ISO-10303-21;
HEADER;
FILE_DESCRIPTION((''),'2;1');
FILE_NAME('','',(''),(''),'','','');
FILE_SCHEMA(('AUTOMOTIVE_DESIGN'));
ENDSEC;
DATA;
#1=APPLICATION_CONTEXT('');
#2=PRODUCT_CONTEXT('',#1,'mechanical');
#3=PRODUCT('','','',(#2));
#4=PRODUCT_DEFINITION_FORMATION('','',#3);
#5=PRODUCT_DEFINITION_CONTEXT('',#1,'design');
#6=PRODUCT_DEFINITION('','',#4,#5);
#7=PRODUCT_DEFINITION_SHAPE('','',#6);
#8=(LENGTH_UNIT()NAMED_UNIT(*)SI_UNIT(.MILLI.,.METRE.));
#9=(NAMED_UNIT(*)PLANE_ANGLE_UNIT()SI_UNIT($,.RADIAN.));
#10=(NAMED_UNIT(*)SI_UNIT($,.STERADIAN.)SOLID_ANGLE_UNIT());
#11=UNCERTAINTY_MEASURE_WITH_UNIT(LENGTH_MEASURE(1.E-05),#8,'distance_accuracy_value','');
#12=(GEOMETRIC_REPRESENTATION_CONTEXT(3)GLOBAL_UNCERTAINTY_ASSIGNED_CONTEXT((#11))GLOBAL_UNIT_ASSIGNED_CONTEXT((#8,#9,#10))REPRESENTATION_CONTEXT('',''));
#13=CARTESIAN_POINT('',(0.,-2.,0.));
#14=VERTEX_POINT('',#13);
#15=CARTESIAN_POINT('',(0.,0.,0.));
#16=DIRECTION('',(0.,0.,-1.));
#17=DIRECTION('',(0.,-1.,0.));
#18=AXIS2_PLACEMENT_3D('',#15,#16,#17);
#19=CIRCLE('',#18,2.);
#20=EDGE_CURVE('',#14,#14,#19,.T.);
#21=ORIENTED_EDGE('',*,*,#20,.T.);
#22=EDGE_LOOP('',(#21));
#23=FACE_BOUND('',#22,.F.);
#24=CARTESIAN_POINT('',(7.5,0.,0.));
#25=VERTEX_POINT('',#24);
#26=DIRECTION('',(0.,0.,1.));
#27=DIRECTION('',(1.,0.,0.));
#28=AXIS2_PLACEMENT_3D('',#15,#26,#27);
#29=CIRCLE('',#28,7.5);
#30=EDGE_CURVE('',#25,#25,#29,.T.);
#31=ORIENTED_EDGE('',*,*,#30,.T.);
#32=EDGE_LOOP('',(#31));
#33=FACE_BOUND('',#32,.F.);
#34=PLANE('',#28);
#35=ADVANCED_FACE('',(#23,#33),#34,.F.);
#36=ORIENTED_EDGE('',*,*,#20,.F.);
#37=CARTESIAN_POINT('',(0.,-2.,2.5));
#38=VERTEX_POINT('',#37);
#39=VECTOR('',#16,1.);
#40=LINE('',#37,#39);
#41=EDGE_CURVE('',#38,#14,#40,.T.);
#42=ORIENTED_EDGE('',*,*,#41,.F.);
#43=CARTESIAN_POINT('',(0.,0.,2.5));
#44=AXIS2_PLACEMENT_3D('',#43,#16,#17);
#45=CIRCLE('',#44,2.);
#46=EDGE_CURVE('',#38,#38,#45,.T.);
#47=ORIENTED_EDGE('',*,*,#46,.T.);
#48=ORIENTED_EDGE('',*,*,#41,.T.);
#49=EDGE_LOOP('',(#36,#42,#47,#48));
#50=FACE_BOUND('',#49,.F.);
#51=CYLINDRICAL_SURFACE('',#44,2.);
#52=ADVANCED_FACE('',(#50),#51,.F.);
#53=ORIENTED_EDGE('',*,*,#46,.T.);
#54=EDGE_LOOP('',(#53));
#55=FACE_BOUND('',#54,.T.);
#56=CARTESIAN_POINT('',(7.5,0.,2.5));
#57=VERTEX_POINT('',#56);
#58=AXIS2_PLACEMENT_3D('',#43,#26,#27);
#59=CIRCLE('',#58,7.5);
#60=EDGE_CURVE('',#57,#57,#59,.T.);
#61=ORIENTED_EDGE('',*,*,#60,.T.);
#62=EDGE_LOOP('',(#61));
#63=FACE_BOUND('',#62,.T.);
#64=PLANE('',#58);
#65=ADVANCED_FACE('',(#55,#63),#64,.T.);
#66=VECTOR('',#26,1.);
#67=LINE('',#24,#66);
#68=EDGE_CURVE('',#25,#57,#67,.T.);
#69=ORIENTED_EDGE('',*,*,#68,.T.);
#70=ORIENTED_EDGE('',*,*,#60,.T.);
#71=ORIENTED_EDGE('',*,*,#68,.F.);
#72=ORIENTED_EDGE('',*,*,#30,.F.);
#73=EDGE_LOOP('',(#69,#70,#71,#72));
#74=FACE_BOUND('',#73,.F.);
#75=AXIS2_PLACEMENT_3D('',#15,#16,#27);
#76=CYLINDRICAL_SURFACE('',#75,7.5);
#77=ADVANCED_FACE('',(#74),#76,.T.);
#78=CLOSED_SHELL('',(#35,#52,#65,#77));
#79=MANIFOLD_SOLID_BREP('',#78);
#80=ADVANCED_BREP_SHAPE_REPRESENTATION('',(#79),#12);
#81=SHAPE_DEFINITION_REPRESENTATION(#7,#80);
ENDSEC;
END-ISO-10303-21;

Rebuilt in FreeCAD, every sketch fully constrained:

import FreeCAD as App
import Part
import Sketcher

doc = App.newDocument("Part")
body = doc.addObject("PartDesign::Body", "Body")

sketch1 = body.newObject("Sketcher::SketchObject", "Sketch")
sketch1.AttachmentSupport = (doc.getObject("XY_Plane"), [""])
sketch1.MapMode = "FlatFace"
sketch1.addGeometry(Part.Circle(App.Vector(0, 0, 0), App.Vector(0, 0, 1), 8), False)
sketch1.addConstraint([
    Sketcher.Constraint("Coincident", 0, 3, -1, 1),
    Sketcher.Constraint("Diameter", 0, 15.0),
])
pad1 = body.newObject("PartDesign::Pad", "Pad")
pad1.Profile = sketch1
pad1.Length = 2.5

sketch2 = body.newObject("Sketcher::SketchObject", "Sketch001")
sketch2.AttachmentSupport = (doc.getObject("XY_Plane"), [""])
sketch2.MapMode = "FlatFace"
sketch2.AttachmentOffset = App.Placement(App.Vector(0, 0, 2.5), App.Rotation())
sketch2.addGeometry(Part.Circle(App.Vector(0, 0, 0), App.Vector(0, 0, 1), 2), False)
sketch2.addConstraint([
    Sketcher.Constraint("Coincident", 0, 3, -1, 1),
    Sketcher.Constraint("Diameter", 0, 4.0),
])
doc.recompute()
hole = body.newObject("PartDesign::Hole", "Hole")
hole.Profile = sketch2
hole.ThreadType = "None"
hole.Diameter = 4
hole.DepthType = "ThroughAll"

doc.recompute()
